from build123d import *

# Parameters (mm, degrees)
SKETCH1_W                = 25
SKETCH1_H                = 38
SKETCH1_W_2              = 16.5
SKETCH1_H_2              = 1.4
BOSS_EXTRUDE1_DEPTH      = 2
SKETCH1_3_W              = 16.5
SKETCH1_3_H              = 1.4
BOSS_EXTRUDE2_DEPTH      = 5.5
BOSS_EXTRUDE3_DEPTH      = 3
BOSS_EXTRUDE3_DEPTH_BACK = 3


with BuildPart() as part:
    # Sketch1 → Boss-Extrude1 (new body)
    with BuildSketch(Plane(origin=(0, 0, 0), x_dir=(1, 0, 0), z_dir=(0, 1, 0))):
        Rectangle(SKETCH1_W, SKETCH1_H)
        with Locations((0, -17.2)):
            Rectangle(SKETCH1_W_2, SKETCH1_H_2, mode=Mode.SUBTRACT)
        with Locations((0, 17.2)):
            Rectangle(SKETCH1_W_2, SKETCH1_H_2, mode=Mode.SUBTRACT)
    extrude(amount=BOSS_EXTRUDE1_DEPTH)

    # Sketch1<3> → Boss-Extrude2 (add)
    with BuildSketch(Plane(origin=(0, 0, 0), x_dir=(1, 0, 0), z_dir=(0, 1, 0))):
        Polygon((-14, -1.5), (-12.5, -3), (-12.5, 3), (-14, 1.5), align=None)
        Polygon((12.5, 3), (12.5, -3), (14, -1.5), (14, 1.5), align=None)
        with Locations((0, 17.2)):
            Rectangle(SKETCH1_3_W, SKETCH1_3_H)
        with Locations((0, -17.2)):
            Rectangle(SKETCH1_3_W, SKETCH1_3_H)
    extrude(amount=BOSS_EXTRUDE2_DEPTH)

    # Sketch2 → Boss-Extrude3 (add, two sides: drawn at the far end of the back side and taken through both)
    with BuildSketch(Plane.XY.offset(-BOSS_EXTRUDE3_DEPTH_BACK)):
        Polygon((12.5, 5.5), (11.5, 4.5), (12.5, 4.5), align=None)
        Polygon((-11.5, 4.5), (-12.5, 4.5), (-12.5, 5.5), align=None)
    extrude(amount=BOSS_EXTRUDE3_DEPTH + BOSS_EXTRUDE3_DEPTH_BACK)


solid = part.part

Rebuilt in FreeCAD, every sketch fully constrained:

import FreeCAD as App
import Part
import Sketcher

V = App.Vector
Q = App.Units.Quantity


def add_polygon(sketch, points):
    """Adds a closed chain of lines whose ends are joined by coincident constraints."""
    first, n = sketch.GeometryCount, len(points)
    for a, b in zip(points, points[1:] + points[:1]):
        sketch.addGeometry(Part.LineSegment(App.Vector(*a, 0), App.Vector(*b, 0)), False)
    for i in range(n):
        sketch.addConstraint(Sketcher.Constraint("Coincident", first + i, 2, first + (i + 1) % n, 1))

doc = App.newDocument("Part")
body = doc.addObject("PartDesign::Body", "Body")

# Sketch on XZ plane
sketch1 = body.newObject("Sketcher::SketchObject", "Sketch")
sketch1.AttachmentSupport = (doc.getObject("XZ_Plane"), [""])
sketch1.MapMode = "FlatFace"
add_polygon(sketch1, [(-12.5, -19), (-12.5, 19), (12.5, 19), (12.5, -19)])  # lines 0-3
add_polygon(sketch1, [(8.25, 17.9), (-8.25, 17.9), (-8.25, 16.5), (8.25, 16.5)])  # lines 4-7
add_polygon(sketch1, [(8.25, -16.5), (-8.25, -16.5), (-8.25, -17.9), (8.25, -17.9)])  # lines 8-11
sketch1.addConstraint(Sketcher.Constraint("Vertical", 0))
sketch1.addConstraint(Sketcher.Constraint("Horizontal", 1))
sketch1.addConstraint(Sketcher.Constraint("Vertical", 2))
sketch1.addConstraint(Sketcher.Constraint("Horizontal", 3))
sketch1.addConstraint(Sketcher.Constraint("Horizontal", 4))
sketch1.addConstraint(Sketcher.Constraint("Vertical", 5))
sketch1.addConstraint(Sketcher.Constraint("Horizontal", 6))
sketch1.addConstraint(Sketcher.Constraint("Vertical", 7))
sketch1.addConstraint(Sketcher.Constraint("Horizontal", 8))
sketch1.addConstraint(Sketcher.Constraint("Vertical", 9))
sketch1.addConstraint(Sketcher.Constraint("Horizontal", 10))
sketch1.addConstraint(Sketcher.Constraint("Vertical", 11))
sketch1.addConstraint(Sketcher.Constraint("Symmetric", 0, 2, 2, 2, -1, 1))
sketch1.addConstraint(Sketcher.Constraint("Symmetric", 6, 2, 8, 2, -1, 1))
sketch1.addConstraint(Sketcher.Constraint("Symmetric", 4, 2, 10, 2, -1, 1))
sketch1.addConstraint(Sketcher.Constraint("Vertical", 5, 2, 8, 2))
sketch1.addConstraint(Sketcher.Constraint("DistanceX", 1, 1, 1, 2, Q("25 mm")))
sketch1.addConstraint(Sketcher.Constraint("DistanceY", 0, 1, 0, 2, Q("38 mm")))
sketch1.addConstraint(Sketcher.Constraint("DistanceX", 4, 2, 4, 1, Q("16.5 mm")))
sketch1.addConstraint(Sketcher.Constraint("DistanceY", 5, 2, 5, 1, Q("1.4 mm")))
sketch1.addConstraint(Sketcher.Constraint("DistanceY", 8, 2, 5, 2, Q("33 mm")))
pad1 = body.newObject("PartDesign::Pad", "Pad")
pad1.Profile = sketch1
pad1.Length = 2
pad1.Reversed = True

# Sketch on XZ plane
sketch2 = body.newObject("Sketcher::SketchObject", "Sketch001")
sketch2.AttachmentSupport = (doc.getObject("XZ_Plane"), [""])
sketch2.MapMode = "FlatFace"
add_polygon(sketch2, [(-14, 1.5), (-12.5, 3), (-12.5, -3), (-14, -1.5)])  # lines 0-3
add_polygon(sketch2, [(12.5, -3), (12.5, 3), (14, 1.5), (14, -1.5)])  # lines 4-7
add_polygon(sketch2, [(-8.25, -17.9), (-8.25, -16.5), (8.25, -16.5), (8.25, -17.9)])  # lines 8-11
add_polygon(sketch2, [(-8.25, 16.5), (-8.25, 17.9), (8.25, 17.9), (8.25, 16.5)])  # lines 12-15
sketch2.addConstraint(Sketcher.Constraint("Vertical", 1))
sketch2.addConstraint(Sketcher.Constraint("Vertical", 3))
sketch2.addConstraint(Sketcher.Constraint("Vertical", 4))
sketch2.addConstraint(Sketcher.Constraint("Vertical", 6))
sketch2.addConstraint(Sketcher.Constraint("Vertical", 8))
sketch2.addConstraint(Sketcher.Constraint("Horizontal", 9))
sketch2.addConstraint(Sketcher.Constraint("Vertical", 10))
sketch2.addConstraint(Sketcher.Constraint("Horizontal", 11))
sketch2.addConstraint(Sketcher.Constraint("Vertical", 12))
sketch2.addConstraint(Sketcher.Constraint("Horizontal", 13))
sketch2.addConstraint(Sketcher.Constraint("Vertical", 14))
sketch2.addConstraint(Sketcher.Constraint("Horizontal", 15))
sketch2.addConstraint(Sketcher.Constraint("Symmetric", 1, 2, 4, 2, -1, 1))
sketch2.addConstraint(Sketcher.Constraint("Symmetric", 2, 2, 5, 2, -1, 1))
sketch2.addConstraint(Sketcher.Constraint("Symmetric", 10, 2, 12, 2, -1, 1))
sketch2.addConstraint(Sketcher.Constraint("Symmetric", 8, 2, 14, 2, -1, 1))
sketch2.addConstraint(Sketcher.Constraint("Perpendicular", 0, 2))
sketch2.addConstraint(Sketcher.Constraint("Perpendicular", 5, 7))
sketch2.addConstraint(Sketcher.Constraint("Horizontal", 0, 2, 4, 2))
sketch2.addConstraint(Sketcher.Constraint("Horizontal", 3, 2, 5, 2))
sketch2.addConstraint(Sketcher.Constraint("Horizontal", 2, 2, 6, 2))
sketch2.addConstraint(Sketcher.Constraint("Vertical", 11, 2, 12, 2))
sketch2.addConstraint(Sketcher.Constraint("DistanceY", 1, 2, 1, 1, Q("6 mm")))
sketch2.addConstraint(Sketcher.Constraint("DistanceY", 3, 1, 3, 2, Q("3 mm")))
sketch2.addConstraint(Sketcher.Constraint("DistanceX", 9, 1, 9, 2, Q("16.5 mm")))
sketch2.addConstraint(Sketcher.Constraint("DistanceY", 8, 1, 8, 2, Q("1.4 mm")))
sketch2.addConstraint(Sketcher.Constraint("DistanceX", 2, 2, -1, 1, Q("14 mm")))
sketch2.addConstraint(Sketcher.Constraint("DistanceY", 8, 2, 2, 2, Q("15 mm")))
pad2 = body.newObject("PartDesign::Pad", "Pad001")
pad2.Profile = sketch2
pad2.Length = 5.5
pad2.Reversed = True

# Sketch on XY plane
sketch3 = body.newObject("Sketcher::SketchObject", "Sketch002")
sketch3.AttachmentSupport = (doc.getObject("XY_Plane"), [""])
sketch3.MapMode = "FlatFace"
add_polygon(sketch3, [(12.5, 5.5), (11.5, 4.5), (12.5, 4.5)])  # lines 0-2
add_polygon(sketch3, [(-12.5, 4.5), (-11.5, 4.5), (-12.5, 5.5)])  # lines 3-5
sketch3.addConstraint(Sketcher.Constraint("Horizontal", 1))
sketch3.addConstraint(Sketcher.Constraint("Vertical", 2))
sketch3.addConstraint(Sketcher.Constraint("Horizontal", 3))
sketch3.addConstraint(Sketcher.Constraint("Vertical", 5))
sketch3.addConstraint(Sketcher.Constraint("Symmetric", 0, 2, 3, 2, -2))
sketch3.addConstraint(Sketcher.Constraint("Symmetric", 2, 2, 4, 2, -2))
sketch3.addConstraint(Sketcher.Constraint("Perpendicular", 0, 4))
sketch3.addConstraint(Sketcher.Constraint("DistanceX", 1, 1, 1, 2, Q("1 mm")))
sketch3.addConstraint(Sketcher.Constraint("DistanceX", 3, 2, 0, 2, Q("23 mm")))
sketch3.addConstraint(Sketcher.Constraint("DistanceY", -1, 1, 0, 2, Q("4.5 mm")))
pad3 = body.newObject("PartDesign::Pad", "Pad002")
pad3.Profile = sketch3
pad3.Type = "TwoLengths"
pad3.Length = 3
pad3.Length2 = 3

doc.recompute()
